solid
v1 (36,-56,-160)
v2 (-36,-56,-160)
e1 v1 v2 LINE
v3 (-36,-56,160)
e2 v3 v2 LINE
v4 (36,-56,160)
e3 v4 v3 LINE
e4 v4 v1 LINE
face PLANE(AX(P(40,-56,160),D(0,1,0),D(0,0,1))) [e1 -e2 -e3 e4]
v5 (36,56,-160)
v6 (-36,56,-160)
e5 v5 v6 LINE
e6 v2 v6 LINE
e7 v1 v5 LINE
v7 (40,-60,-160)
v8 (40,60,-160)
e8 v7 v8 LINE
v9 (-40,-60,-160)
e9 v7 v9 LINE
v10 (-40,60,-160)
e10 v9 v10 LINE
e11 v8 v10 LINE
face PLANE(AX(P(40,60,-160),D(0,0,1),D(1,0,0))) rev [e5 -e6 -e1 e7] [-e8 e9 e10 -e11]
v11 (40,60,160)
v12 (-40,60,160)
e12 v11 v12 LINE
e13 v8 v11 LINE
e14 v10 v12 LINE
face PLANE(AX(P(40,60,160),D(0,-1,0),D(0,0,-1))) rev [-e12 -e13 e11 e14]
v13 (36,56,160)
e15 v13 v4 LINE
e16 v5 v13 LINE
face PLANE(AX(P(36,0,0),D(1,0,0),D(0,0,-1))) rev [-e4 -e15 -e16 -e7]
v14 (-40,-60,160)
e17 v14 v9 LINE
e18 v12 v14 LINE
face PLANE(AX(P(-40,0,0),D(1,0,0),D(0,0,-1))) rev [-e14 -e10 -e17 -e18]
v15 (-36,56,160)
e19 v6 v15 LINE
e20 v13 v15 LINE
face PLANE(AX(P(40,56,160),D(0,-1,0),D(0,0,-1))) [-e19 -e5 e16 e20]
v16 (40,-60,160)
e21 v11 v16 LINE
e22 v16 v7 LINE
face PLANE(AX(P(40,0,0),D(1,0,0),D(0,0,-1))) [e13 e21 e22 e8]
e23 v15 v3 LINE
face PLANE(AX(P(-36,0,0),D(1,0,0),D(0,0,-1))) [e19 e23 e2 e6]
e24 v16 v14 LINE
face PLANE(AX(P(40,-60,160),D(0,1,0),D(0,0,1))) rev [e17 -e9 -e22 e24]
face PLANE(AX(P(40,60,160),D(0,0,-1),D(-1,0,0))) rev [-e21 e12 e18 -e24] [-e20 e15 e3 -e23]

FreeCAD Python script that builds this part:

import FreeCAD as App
import Part
import Sketcher
from FreeCAD import Vector


def faces_at(feature, points):
    """Names of the faces that lie closest to the given points."""
    faces = feature.Shape.Faces
    near = lambda p: min(range(len(faces)), key=lambda i: faces[i].distToShape(Part.Vertex(*p))[0])
    return sorted({f"Face{near(p) + 1}" for p in points})

doc = App.newDocument("Part")
body = doc.addObject("PartDesign::Body", "Body")

# Sketch on YZ plane
sketch1 = doc.addObject("Sketcher::SketchObject", "Sketch")
body.addObject(sketch1)
sketch1.AttachmentSupport = (doc.YZ_Plane, [""])
sketch1.MapMode = "FlatFace"
sketch1.addGeometry([
    Part.LineSegment(Vector(60, 160, 0), Vector(-60, 160, 0)),
    Part.LineSegment(Vector(-60, 160, 0), Vector(-60, -160, 0)),
    Part.LineSegment(Vector(-60, -160, 0), Vector(60, -160, 0)),
    Part.LineSegment(Vector(60, -160, 0), Vector(60, 160, 0)),
], False)
sketch1.addConstraint([
    Sketcher.Constraint("Coincident", 0, 2, 1, 1),
    Sketcher.Constraint("Coincident", 1, 2, 2, 1),
    Sketcher.Constraint("Coincident", 2, 2, 3, 1),
    Sketcher.Constraint("Coincident", 3, 2, 0, 1),
    Sketcher.Constraint("Horizontal", 0),
    Sketcher.Constraint("Vertical", 1),
    Sketcher.Constraint("Horizontal", 2),
    Sketcher.Constraint("Vertical", 3),
    Sketcher.Constraint("Symmetric", 0, 2, 2, 2, -1, 1),
    Sketcher.Constraint("DistanceX", 0, 2, 0, 1, 120.0),
    Sketcher.Constraint("DistanceY", 1, 2, 1, 1, 320.0),
])
pad1 = doc.addObject("PartDesign::Pad", "Pad")
body.addObject(pad1)
pad1.Profile = sketch1
pad1.Length = 80
pad1.Midplane = True
doc.recompute()

thickness = doc.addObject("PartDesign::Thickness", "Thickness")
body.addObject(thickness)
thickness.Base = (pad1, faces_at(pad1, [(0, 0, -160), (0, 0, 160)]))
thickness.Value = 4
thickness.Reversed = True
thickness.Join = "Intersection"

doc.recompute()
